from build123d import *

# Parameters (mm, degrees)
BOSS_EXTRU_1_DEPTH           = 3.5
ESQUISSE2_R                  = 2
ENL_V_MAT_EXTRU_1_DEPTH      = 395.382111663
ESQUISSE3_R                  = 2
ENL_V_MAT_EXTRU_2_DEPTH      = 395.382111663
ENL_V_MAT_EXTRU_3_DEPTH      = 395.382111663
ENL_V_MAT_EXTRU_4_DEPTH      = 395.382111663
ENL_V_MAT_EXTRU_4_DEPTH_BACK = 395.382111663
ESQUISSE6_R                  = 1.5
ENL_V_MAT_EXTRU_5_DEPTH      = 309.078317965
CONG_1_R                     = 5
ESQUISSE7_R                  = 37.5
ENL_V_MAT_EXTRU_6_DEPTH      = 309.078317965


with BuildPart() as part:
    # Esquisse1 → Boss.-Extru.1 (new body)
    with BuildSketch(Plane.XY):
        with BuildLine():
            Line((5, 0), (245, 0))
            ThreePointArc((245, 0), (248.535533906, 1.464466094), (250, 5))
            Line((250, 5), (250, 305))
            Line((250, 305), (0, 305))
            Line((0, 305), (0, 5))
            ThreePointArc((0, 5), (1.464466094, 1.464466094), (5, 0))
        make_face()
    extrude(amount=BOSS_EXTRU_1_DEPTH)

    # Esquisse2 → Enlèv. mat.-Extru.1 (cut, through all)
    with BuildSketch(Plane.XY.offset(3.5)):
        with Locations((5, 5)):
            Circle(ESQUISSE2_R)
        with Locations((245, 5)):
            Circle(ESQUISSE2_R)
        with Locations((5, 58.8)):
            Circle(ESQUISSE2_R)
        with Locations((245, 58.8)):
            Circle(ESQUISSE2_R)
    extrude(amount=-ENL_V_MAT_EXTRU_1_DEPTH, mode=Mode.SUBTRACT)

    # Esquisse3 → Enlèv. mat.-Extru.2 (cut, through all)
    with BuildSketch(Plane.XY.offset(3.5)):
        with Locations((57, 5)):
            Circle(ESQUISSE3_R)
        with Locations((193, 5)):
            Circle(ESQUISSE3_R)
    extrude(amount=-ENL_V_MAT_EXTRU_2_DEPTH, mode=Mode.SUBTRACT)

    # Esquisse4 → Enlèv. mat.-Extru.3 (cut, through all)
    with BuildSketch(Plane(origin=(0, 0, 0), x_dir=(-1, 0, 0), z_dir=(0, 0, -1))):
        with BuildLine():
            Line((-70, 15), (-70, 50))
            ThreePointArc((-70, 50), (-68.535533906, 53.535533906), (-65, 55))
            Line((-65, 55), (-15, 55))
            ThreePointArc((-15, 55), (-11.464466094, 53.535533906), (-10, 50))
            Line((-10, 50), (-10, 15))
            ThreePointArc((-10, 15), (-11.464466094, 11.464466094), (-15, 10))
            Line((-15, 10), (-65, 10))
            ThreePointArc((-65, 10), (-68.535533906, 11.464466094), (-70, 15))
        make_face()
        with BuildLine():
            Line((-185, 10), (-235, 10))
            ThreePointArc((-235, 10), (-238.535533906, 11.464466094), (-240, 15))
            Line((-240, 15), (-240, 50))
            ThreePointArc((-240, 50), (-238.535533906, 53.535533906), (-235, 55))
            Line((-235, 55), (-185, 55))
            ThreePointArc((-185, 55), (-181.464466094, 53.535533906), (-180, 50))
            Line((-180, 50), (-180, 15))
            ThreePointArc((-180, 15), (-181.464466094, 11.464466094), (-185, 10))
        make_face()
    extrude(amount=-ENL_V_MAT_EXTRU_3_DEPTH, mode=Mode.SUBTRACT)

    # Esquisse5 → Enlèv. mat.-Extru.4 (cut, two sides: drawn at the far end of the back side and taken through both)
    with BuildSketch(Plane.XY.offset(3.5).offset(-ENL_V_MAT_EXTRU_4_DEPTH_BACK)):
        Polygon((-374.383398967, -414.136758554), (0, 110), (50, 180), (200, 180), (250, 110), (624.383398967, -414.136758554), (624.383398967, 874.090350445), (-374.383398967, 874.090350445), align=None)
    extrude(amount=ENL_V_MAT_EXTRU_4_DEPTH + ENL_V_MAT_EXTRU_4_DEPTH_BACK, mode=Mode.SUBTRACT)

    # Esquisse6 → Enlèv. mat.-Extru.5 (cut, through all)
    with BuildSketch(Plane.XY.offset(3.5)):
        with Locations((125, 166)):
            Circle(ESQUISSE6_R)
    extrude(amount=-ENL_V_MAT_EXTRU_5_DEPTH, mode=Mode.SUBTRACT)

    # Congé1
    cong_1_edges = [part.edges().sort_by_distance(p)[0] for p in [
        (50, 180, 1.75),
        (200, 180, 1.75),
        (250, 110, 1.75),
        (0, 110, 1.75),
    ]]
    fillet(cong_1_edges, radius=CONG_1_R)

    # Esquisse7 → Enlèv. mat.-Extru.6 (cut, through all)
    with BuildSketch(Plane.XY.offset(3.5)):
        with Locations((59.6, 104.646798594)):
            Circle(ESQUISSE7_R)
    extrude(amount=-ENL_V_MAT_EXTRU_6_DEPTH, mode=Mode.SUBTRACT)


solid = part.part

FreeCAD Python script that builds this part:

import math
import FreeCAD as App
import Part
import Sketcher

V = App.Vector


def edges_at(feature, points):
    """Names of the edges that pass closest to the given points."""
    edges = feature.Shape.Edges
    near = lambda p: min(range(len(edges)), key=lambda i: edges[i].distToShape(Part.Vertex(*p))[0])
    return sorted({f"Edge{near(p) + 1}" for p in points})


def add_polygon(sketch, points):
    """Adds a closed chain of lines whose ends are joined by coincident constraints."""
    first, n = sketch.GeometryCount, len(points)
    for a, b in zip(points, points[1:] + points[:1]):
        sketch.addGeometry(Part.LineSegment(App.Vector(*a, 0), App.Vector(*b, 0)), False)
    for i in range(n):
        sketch.addConstraint(Sketcher.Constraint("Coincident", first + i, 2, first + (i + 1) % n, 1))

doc = App.newDocument("Part")
body = doc.addObject("PartDesign::Body", "Body")

# Sketch on XY plane
sketch1 = doc.addObject("Sketcher::SketchObject", "Sketch")
body.addObject(sketch1)
sketch1.AttachmentSupport = (doc.XY_Plane, [""])
sketch1.MapMode = "FlatFace"
sketch1.addGeometry(Part.LineSegment(V(5, 0, 0), V(245, 0, 0)), False)
sketch1.addGeometry(Part.ArcOfCircle(Part.Circle(V(245, 5, 0), V(0, 0, 1), 5), math.radians(-90), math.radians(0)), False)
sketch1.addGeometry(Part.LineSegment(V(250, 5, 0), V(250, 305, 0)), False)
sketch1.addGeometry(Part.LineSegment(V(250, 305, 0), V(0, 305, 0)), False)
sketch1.addGeometry(Part.LineSegment(V(0, 305, 0), V(0, 5, 0)), False)
sketch1.addGeometry(Part.ArcOfCircle(Part.Circle(V(5, 5, 0), V(0, 0, 1), 5), math.radians(180), math.radians(270)), False)
sketch1.addConstraint(Sketcher.Constraint("Tangent", 0, 2, 1, 1))
sketch1.addConstraint(Sketcher.Constraint("Tangent", 1, 2, 2, 1))
sketch1.addConstraint(Sketcher.Constraint("Coincident", 2, 2, 3, 1))
sketch1.addConstraint(Sketcher.Constraint("Coincident", 3, 2, 4, 1))
sketch1.addConstraint(Sketcher.Constraint("Tangent", 4, 2, 5, 1))
sketch1.addConstraint(Sketcher.Constraint("Tangent", 5, 2, 0, 1))
sketch1.addConstraint(Sketcher.Constraint("Horizontal", 0))
sketch1.addConstraint(Sketcher.Constraint("Vertical", 2))
sketch1.addConstraint(Sketcher.Constraint("Horizontal", 3))
sketch1.addConstraint(Sketcher.Constraint("Vertical", 4))
sketch1.addConstraint(Sketcher.Constraint("Equal", 1, 5))
sketch1.addConstraint(Sketcher.Constraint("PointOnObject", 0, 2, -1))
sketch1.addConstraint(Sketcher.Constraint("PointOnObject", 3, 2, -2))
sketch1.addConstraint(Sketcher.Constraint("Radius", 1, 5.0))
sketch1.addConstraint(Sketcher.Constraint("DistanceX", 0, 1, 0, 2, 240.0))
sketch1.addConstraint(Sketcher.Constraint("DistanceY", 2, 1, 2, 2, 300.0))
pad1 = doc.addObject("PartDesign::Pad", "Pad")
body.addObject(pad1)
pad1.Profile = sketch1
pad1.Length = 3.5

# Sketch on XY plane
sketch2 = doc.addObject("Sketcher::SketchObject", "Sketch001")
body.addObject(sketch2)
sketch2.AttachmentSupport = (doc.XY_Plane, [""])
sketch2.MapMode = "FlatFace"
sketch2.AttachmentOffset = App.Placement(V(0, 0, 3.5), App.Rotation())
sketch2.addGeometry(Part.Circle(V(5, 5, 0), V(0, 0, 1), 2), False)
sketch2.addGeometry(Part.Circle(V(245, 5, 0), V(0, 0, 1), 2), False)
sketch2.addGeometry(Part.Circle(V(5, 58.8, 0), V(0, 0, 1), 2), False)
sketch2.addGeometry(Part.Circle(V(245, 58.8, 0), V(0, 0, 1), 2), False)
sketch2.addConstraint(Sketcher.Constraint("Equal", 0, 1))
sketch2.addConstraint(Sketcher.Constraint("Equal", 1, 2))
sketch2.addConstraint(Sketcher.Constraint("Equal", 2, 3))
sketch2.addConstraint(Sketcher.Constraint("Horizontal", 0, 3, 1, 3))
sketch2.addConstraint(Sketcher.Constraint("Horizontal", 2, 3, 3, 3))
sketch2.addConstraint(Sketcher.Constraint("Vertical", 0, 3, 2, 3))
sketch2.addConstraint(Sketcher.Constraint("Vertical", 1, 3, 3, 3))
sketch2.addConstraint(Sketcher.Constraint("Diameter", 0, 4.0))
sketch2.addConstraint(Sketcher.Constraint("DistanceX", -1, 1, 0, 3, 5.0))
sketch2.addConstraint(Sketcher.Constraint("DistanceY", -1, 1, 0, 3, 5.0))
sketch2.addConstraint(Sketcher.Constraint("DistanceX", -1, 1, 1, 3, 245.0))
sketch2.addConstraint(Sketcher.Constraint("DistanceY", -1, 1, 2, 3, 58.8))
pocket1 = doc.addObject("PartDesign::Pocket", "Pocket")
body.addObject(pocket1)
pocket1.Profile = sketch2
pocket1.Type = "ThroughAll"

# Sketch on XY plane
sketch3 = doc.addObject("Sketcher::SketchObject", "Sketch002")
body.addObject(sketch3)
sketch3.AttachmentSupport = (doc.XY_Plane, [""])
sketch3.MapMode = "FlatFace"
sketch3.AttachmentOffset = App.Placement(V(0, 0, 3.5), App.Rotation())
sketch3.addGeometry(Part.Circle(V(57, 5, 0), V(0, 0, 1), 2), False)
sketch3.addGeometry(Part.Circle(V(193, 5, 0), V(0, 0, 1), 2), False)
sketch3.addConstraint(Sketcher.Constraint("Equal", 0, 1))
sketch3.addConstraint(Sketcher.Constraint("Horizontal", 0, 3, 1, 3))
sketch3.addConstraint(Sketcher.Constraint("Diameter", 0, 4.0))
sketch3.addConstraint(Sketcher.Constraint("DistanceX", -1, 1, 0, 3, 57.0))
sketch3.addConstraint(Sketcher.Constraint("DistanceY", -1, 1, 0, 3, 5.0))
sketch3.addConstraint(Sketcher.Constraint("DistanceX", -1, 1, 1, 3, 193.0))
pocket2 = doc.addObject("PartDesign::Pocket", "Pocket001")
body.addObject(pocket2)
pocket2.Profile = sketch3
pocket2.Type = "ThroughAll"

# Sketch on XY plane
sketch4 = doc.addObject("Sketcher::SketchObject", "Sketch003")
body.addObject(sketch4)
sketch4.AttachmentSupport = (doc.XY_Plane, [""])
sketch4.MapMode = "FlatFace"
sketch4.addGeometry(Part.LineSegment(V(70, 50, 0), V(70, 15, 0)), False)
sketch4.addGeometry(Part.ArcOfCircle(Part.Circle(V(65, 15, 0), V(0, 0, 1), 5), math.radians(-90), math.radians(0)), False)
sketch4.addGeometry(Part.LineSegment(V(65, 10, 0), V(15, 10, 0)), False)
sketch4.addGeometry(Part.ArcOfCircle(Part.Circle(V(15, 15, 0), V(0, 0, 1), 5), math.radians(180), math.radians(270)), False)
sketch4.addGeometry(Part.LineSegment(V(10, 15, 0), V(10, 50, 0)), False)
sketch4.addGeometry(Part.ArcOfCircle(Part.Circle(V(15, 50, 0), V(0, 0, 1), 5), math.radians(90), math.radians(180)), False)
sketch4.addGeometry(Part.LineSegment(V(15, 55, 0), V(65, 55, 0)), False)
sketch4.addGeometry(Part.ArcOfCircle(Part.Circle(V(65, 50, 0), V(0, 0, 1), 5), math.radians(0), math.radians(90)), False)
sketch4.addGeometry(Part.LineSegment(V(235, 10, 0), V(185, 10, 0)), False)
sketch4.addGeometry(Part.ArcOfCircle(Part.Circle(V(185, 15, 0), V(0, 0, 1), 5), math.radians(180), math.radians(270)), False)
sketch4.addGeometry(Part.LineSegment(V(180, 15, 0), V(180, 50, 0)), False)
sketch4.addGeometry(Part.ArcOfCircle(Part.Circle(V(185, 50, 0), V(0, 0, 1), 5), math.radians(90), math.radians(180)), False)
sketch4.addGeometry(Part.LineSegment(V(185, 55, 0), V(235, 55, 0)), False)
sketch4.addGeometry(Part.ArcOfCircle(Part.Circle(V(235, 50, 0), V(0, 0, 1), 5), math.radians(0), math.radians(90)), False)
sketch4.addGeometry(Part.LineSegment(V(240, 50, 0), V(240, 15, 0)), False)
sketch4.addGeometry(Part.ArcOfCircle(Part.Circle(V(235, 15, 0), V(0, 0, 1), 5), math.radians(-90), math.radians(0)), False)
sketch4.addConstraint(Sketcher.Constraint("Tangent", 0, 2, 1, 2))
sketch4.addConstraint(Sketcher.Constraint("Tangent", 1, 1, 2, 1))
sketch4.addConstraint(Sketcher.Constraint("Tangent", 2, 2, 3, 2))
sketch4.addConstraint(Sketcher.Constraint("Tangent", 3, 1, 4, 1))
sketch4.addConstraint(Sketcher.Constraint("Tangent", 4, 2, 5, 2))
sketch4.addConstraint(Sketcher.Constraint("Tangent", 5, 1, 6, 1))
sketch4.addConstraint(Sketcher.Constraint("Tangent", 6, 2, 7, 2))
sketch4.addConstraint(Sketcher.Constraint("Tangent", 7, 1, 0, 1))
sketch4.addConstraint(Sketcher.Constraint("Tangent", 8, 2, 9, 2))
sketch4.addConstraint(Sketcher.Constraint("Tangent", 9, 1, 10, 1))
sketch4.addConstraint(Sketcher.Constraint("Tangent", 10, 2, 11, 2))
sketch4.addConstraint(Sketcher.Constraint("Tangent", 11, 1, 12, 1))
sketch4.addConstraint(Sketcher.Constraint("Tangent", 12, 2, 13, 2))
sketch4.addConstraint(Sketcher.Constraint("Tangent", 13, 1, 14, 1))
sketch4.addConstraint(Sketcher.Constraint("Tangent", 14, 2, 15, 2))
sketch4.addConstraint(Sketcher.Constraint("Tangent", 15, 1, 8, 1))
sketch4.addConstraint(Sketcher.Constraint("Vertical", 0))
sketch4.addConstraint(Sketcher.Constraint("Horizontal", 2))
sketch4.addConstraint(Sketcher.Constraint("Vertical", 4))
sketch4.addConstraint(Sketcher.Constraint("Horizontal", 6))
sketch4.addConstraint(Sketcher.Constraint("Horizontal", 8))
sketch4.addConstraint(Sketcher.Constraint("Vertical", 10))
sketch4.addConstraint(Sketcher.Constraint("Horizontal", 12))
sketch4.addConstraint(Sketcher.Constraint("Vertical", 14))
sketch4.addConstraint(Sketcher.Constraint("Equal", 1, 3))
sketch4.addConstraint(Sketcher.Constraint("Equal", 3, 5))
sketch4.addConstraint(Sketcher.Constraint("Equal", 5, 7))
sketch4.addConstraint(Sketcher.Constraint("Equal", 7, 9))
sketch4.addConstraint(Sketcher.Constraint("Equal", 9, 11))
sketch4.addConstraint(Sketcher.Constraint("Equal", 11, 13))
sketch4.addConstraint(Sketcher.Constraint("Equal", 13, 15))
sketch4.addConstraint(Sketcher.Constraint("Horizontal", 3, 3, 9, 3))
sketch4.addConstraint(Sketcher.Constraint("Horizontal", 7, 3, 11, 3))
sketch4.addConstraint(Sketcher.Constraint("Equal", 6, 8))
sketch4.addConstraint(Sketcher.Constraint("Radius", 1, 5.0))
sketch4.addConstraint(Sketcher.Constraint("DistanceX", 2, 2, 2, 1, 50.0))
sketch4.addConstraint(Sketcher.Constraint("DistanceY", 0, 2, 0, 1, 35.0))
sketch4.addConstraint(Sketcher.Constraint("DistanceX", -1, 1, 1, 3, 65.0))
sketch4.addConstraint(Sketcher.Constraint("DistanceY", -1, 1, 1, 3, 15.0))
sketch4.addConstraint(Sketcher.Constraint("DistanceX", -1, 1, 9, 3, 185.0))
pocket3 = doc.addObject("PartDesign::Pocket", "Pocket002")
body.addObject(pocket3)
pocket3.Profile = sketch4
pocket3.Type = "ThroughAll"
pocket3.Reversed = True

# Sketch on XY plane
sketch5 = doc.addObject("Sketcher::SketchObject", "Sketch004")
body.addObject(sketch5)
sketch5.AttachmentSupport = (doc.XY_Plane, [""])
sketch5.MapMode = "FlatFace"
sketch5.AttachmentOffset = App.Placement(V(0, 0, 3.5), App.Rotation())
add_polygon(sketch5, [(-374, -414), (50, 180), (200, 180), (624, -414), (624, 874), (-374, 874)])  # lines 0-5
sketch5.addConstraint(Sketcher.Constraint("Horizontal", 1))
sketch5.addConstraint(Sketcher.Constraint("Vertical", 3))
sketch5.addConstraint(Sketcher.Constraint("Horizontal", 4))
sketch5.addConstraint(Sketcher.Constraint("Vertical", 5))
sketch5.addConstraint(Sketcher.Constraint("Horizontal", 2, 2, 5, 2))
sketch5.addConstraint(Sketcher.Constraint("Equal", 0, 2))
sketch5.addConstraint(Sketcher.Constraint("DistanceX", 1, 1, 1, 2, 150.0))
sketch5.addConstraint(Sketcher.Constraint("DistanceX", -1, 1, 0, 2, 50.0))
sketch5.addConstraint(Sketcher.Constraint("DistanceY", -1, 1, 0, 2, 180.0))
sketch5.addConstraint(Sketcher.Constraint("DistanceY", 3, 1, 3, 2, 1288.227109))
sketch5.addConstraint(Sketcher.Constraint("DistanceX", -1, 1, 2, 2, 624.383399))
sketch5.addConstraint(Sketcher.Constraint("DistanceY", 2, 2, -1, 1, 414.136759))
pocket4 = doc.addObject("PartDesign::Pocket", "Pocket003")
body.addObject(pocket4)
pocket4.Profile = sketch5
pocket4.Type = "ThroughAll"
pocket4.Midplane = True

# Sketch on XY plane
sketch6 = doc.addObject("Sketcher::SketchObject", "Sketch005")
body.addObject(sketch6)
sketch6.AttachmentSupport = (doc.XY_Plane, [""])
sketch6.MapMode = "FlatFace"
sketch6.AttachmentOffset = App.Placement(V(0, 0, 3.5), App.Rotation())
sketch6.addGeometry(Part.Circle(V(125, 166, 0), V(0, 0, 1), 1.5), False)
sketch6.addConstraint(Sketcher.Constraint("Diameter", 0, 3.0))
sketch6.addConstraint(Sketcher.Constraint("DistanceX", -1, 1, 0, 3, 125.0))
sketch6.addConstraint(Sketcher.Constraint("DistanceY", -1, 1, 0, 3, 166.0))
pocket5 = doc.addObject("PartDesign::Pocket", "Pocket004")
body.addObject(pocket5)
pocket5.Profile = sketch6
pocket5.Type = "ThroughAll"
doc.recompute()

fillet = doc.addObject("PartDesign::Fillet", "Fillet")
body.addObject(fillet)
fillet.Base = (pocket5, edges_at(pocket5, [
    (50, 180, 1.75),
    (200, 180, 1.75),
    (250, 110, 1.75),
    (0, 110, 1.75),
]))
fillet.Radius = 5

# Sketch on XY plane
sketch7 = doc.addObject("Sketcher::SketchObject", "Sketch006")
body.addObject(sketch7)
sketch7.AttachmentSupport = (doc.XY_Plane, [""])
sketch7.MapMode = "FlatFace"
sketch7.AttachmentOffset = App.Placement(V(0, 0, 3.5), App.Rotation())
sketch7.addGeometry(Part.Circle(V(60, 105, 0), V(0, 0, 1), 38), False)
sketch7.addConstraint(Sketcher.Constraint("Diameter", 0, 75.0))
sketch7.addConstraint(Sketcher.Constraint("DistanceX", -1, 1, 0, 3, 59.6))
sketch7.addConstraint(Sketcher.Constraint("DistanceY", -1, 1, 0, 3, 104.646799))
pocket6 = doc.addObject("PartDesign::Pocket", "Pocket005")
body.addObject(pocket6)
pocket6.Profile = sketch7
pocket6.Type = "ThroughAll"

doc.recompute()
